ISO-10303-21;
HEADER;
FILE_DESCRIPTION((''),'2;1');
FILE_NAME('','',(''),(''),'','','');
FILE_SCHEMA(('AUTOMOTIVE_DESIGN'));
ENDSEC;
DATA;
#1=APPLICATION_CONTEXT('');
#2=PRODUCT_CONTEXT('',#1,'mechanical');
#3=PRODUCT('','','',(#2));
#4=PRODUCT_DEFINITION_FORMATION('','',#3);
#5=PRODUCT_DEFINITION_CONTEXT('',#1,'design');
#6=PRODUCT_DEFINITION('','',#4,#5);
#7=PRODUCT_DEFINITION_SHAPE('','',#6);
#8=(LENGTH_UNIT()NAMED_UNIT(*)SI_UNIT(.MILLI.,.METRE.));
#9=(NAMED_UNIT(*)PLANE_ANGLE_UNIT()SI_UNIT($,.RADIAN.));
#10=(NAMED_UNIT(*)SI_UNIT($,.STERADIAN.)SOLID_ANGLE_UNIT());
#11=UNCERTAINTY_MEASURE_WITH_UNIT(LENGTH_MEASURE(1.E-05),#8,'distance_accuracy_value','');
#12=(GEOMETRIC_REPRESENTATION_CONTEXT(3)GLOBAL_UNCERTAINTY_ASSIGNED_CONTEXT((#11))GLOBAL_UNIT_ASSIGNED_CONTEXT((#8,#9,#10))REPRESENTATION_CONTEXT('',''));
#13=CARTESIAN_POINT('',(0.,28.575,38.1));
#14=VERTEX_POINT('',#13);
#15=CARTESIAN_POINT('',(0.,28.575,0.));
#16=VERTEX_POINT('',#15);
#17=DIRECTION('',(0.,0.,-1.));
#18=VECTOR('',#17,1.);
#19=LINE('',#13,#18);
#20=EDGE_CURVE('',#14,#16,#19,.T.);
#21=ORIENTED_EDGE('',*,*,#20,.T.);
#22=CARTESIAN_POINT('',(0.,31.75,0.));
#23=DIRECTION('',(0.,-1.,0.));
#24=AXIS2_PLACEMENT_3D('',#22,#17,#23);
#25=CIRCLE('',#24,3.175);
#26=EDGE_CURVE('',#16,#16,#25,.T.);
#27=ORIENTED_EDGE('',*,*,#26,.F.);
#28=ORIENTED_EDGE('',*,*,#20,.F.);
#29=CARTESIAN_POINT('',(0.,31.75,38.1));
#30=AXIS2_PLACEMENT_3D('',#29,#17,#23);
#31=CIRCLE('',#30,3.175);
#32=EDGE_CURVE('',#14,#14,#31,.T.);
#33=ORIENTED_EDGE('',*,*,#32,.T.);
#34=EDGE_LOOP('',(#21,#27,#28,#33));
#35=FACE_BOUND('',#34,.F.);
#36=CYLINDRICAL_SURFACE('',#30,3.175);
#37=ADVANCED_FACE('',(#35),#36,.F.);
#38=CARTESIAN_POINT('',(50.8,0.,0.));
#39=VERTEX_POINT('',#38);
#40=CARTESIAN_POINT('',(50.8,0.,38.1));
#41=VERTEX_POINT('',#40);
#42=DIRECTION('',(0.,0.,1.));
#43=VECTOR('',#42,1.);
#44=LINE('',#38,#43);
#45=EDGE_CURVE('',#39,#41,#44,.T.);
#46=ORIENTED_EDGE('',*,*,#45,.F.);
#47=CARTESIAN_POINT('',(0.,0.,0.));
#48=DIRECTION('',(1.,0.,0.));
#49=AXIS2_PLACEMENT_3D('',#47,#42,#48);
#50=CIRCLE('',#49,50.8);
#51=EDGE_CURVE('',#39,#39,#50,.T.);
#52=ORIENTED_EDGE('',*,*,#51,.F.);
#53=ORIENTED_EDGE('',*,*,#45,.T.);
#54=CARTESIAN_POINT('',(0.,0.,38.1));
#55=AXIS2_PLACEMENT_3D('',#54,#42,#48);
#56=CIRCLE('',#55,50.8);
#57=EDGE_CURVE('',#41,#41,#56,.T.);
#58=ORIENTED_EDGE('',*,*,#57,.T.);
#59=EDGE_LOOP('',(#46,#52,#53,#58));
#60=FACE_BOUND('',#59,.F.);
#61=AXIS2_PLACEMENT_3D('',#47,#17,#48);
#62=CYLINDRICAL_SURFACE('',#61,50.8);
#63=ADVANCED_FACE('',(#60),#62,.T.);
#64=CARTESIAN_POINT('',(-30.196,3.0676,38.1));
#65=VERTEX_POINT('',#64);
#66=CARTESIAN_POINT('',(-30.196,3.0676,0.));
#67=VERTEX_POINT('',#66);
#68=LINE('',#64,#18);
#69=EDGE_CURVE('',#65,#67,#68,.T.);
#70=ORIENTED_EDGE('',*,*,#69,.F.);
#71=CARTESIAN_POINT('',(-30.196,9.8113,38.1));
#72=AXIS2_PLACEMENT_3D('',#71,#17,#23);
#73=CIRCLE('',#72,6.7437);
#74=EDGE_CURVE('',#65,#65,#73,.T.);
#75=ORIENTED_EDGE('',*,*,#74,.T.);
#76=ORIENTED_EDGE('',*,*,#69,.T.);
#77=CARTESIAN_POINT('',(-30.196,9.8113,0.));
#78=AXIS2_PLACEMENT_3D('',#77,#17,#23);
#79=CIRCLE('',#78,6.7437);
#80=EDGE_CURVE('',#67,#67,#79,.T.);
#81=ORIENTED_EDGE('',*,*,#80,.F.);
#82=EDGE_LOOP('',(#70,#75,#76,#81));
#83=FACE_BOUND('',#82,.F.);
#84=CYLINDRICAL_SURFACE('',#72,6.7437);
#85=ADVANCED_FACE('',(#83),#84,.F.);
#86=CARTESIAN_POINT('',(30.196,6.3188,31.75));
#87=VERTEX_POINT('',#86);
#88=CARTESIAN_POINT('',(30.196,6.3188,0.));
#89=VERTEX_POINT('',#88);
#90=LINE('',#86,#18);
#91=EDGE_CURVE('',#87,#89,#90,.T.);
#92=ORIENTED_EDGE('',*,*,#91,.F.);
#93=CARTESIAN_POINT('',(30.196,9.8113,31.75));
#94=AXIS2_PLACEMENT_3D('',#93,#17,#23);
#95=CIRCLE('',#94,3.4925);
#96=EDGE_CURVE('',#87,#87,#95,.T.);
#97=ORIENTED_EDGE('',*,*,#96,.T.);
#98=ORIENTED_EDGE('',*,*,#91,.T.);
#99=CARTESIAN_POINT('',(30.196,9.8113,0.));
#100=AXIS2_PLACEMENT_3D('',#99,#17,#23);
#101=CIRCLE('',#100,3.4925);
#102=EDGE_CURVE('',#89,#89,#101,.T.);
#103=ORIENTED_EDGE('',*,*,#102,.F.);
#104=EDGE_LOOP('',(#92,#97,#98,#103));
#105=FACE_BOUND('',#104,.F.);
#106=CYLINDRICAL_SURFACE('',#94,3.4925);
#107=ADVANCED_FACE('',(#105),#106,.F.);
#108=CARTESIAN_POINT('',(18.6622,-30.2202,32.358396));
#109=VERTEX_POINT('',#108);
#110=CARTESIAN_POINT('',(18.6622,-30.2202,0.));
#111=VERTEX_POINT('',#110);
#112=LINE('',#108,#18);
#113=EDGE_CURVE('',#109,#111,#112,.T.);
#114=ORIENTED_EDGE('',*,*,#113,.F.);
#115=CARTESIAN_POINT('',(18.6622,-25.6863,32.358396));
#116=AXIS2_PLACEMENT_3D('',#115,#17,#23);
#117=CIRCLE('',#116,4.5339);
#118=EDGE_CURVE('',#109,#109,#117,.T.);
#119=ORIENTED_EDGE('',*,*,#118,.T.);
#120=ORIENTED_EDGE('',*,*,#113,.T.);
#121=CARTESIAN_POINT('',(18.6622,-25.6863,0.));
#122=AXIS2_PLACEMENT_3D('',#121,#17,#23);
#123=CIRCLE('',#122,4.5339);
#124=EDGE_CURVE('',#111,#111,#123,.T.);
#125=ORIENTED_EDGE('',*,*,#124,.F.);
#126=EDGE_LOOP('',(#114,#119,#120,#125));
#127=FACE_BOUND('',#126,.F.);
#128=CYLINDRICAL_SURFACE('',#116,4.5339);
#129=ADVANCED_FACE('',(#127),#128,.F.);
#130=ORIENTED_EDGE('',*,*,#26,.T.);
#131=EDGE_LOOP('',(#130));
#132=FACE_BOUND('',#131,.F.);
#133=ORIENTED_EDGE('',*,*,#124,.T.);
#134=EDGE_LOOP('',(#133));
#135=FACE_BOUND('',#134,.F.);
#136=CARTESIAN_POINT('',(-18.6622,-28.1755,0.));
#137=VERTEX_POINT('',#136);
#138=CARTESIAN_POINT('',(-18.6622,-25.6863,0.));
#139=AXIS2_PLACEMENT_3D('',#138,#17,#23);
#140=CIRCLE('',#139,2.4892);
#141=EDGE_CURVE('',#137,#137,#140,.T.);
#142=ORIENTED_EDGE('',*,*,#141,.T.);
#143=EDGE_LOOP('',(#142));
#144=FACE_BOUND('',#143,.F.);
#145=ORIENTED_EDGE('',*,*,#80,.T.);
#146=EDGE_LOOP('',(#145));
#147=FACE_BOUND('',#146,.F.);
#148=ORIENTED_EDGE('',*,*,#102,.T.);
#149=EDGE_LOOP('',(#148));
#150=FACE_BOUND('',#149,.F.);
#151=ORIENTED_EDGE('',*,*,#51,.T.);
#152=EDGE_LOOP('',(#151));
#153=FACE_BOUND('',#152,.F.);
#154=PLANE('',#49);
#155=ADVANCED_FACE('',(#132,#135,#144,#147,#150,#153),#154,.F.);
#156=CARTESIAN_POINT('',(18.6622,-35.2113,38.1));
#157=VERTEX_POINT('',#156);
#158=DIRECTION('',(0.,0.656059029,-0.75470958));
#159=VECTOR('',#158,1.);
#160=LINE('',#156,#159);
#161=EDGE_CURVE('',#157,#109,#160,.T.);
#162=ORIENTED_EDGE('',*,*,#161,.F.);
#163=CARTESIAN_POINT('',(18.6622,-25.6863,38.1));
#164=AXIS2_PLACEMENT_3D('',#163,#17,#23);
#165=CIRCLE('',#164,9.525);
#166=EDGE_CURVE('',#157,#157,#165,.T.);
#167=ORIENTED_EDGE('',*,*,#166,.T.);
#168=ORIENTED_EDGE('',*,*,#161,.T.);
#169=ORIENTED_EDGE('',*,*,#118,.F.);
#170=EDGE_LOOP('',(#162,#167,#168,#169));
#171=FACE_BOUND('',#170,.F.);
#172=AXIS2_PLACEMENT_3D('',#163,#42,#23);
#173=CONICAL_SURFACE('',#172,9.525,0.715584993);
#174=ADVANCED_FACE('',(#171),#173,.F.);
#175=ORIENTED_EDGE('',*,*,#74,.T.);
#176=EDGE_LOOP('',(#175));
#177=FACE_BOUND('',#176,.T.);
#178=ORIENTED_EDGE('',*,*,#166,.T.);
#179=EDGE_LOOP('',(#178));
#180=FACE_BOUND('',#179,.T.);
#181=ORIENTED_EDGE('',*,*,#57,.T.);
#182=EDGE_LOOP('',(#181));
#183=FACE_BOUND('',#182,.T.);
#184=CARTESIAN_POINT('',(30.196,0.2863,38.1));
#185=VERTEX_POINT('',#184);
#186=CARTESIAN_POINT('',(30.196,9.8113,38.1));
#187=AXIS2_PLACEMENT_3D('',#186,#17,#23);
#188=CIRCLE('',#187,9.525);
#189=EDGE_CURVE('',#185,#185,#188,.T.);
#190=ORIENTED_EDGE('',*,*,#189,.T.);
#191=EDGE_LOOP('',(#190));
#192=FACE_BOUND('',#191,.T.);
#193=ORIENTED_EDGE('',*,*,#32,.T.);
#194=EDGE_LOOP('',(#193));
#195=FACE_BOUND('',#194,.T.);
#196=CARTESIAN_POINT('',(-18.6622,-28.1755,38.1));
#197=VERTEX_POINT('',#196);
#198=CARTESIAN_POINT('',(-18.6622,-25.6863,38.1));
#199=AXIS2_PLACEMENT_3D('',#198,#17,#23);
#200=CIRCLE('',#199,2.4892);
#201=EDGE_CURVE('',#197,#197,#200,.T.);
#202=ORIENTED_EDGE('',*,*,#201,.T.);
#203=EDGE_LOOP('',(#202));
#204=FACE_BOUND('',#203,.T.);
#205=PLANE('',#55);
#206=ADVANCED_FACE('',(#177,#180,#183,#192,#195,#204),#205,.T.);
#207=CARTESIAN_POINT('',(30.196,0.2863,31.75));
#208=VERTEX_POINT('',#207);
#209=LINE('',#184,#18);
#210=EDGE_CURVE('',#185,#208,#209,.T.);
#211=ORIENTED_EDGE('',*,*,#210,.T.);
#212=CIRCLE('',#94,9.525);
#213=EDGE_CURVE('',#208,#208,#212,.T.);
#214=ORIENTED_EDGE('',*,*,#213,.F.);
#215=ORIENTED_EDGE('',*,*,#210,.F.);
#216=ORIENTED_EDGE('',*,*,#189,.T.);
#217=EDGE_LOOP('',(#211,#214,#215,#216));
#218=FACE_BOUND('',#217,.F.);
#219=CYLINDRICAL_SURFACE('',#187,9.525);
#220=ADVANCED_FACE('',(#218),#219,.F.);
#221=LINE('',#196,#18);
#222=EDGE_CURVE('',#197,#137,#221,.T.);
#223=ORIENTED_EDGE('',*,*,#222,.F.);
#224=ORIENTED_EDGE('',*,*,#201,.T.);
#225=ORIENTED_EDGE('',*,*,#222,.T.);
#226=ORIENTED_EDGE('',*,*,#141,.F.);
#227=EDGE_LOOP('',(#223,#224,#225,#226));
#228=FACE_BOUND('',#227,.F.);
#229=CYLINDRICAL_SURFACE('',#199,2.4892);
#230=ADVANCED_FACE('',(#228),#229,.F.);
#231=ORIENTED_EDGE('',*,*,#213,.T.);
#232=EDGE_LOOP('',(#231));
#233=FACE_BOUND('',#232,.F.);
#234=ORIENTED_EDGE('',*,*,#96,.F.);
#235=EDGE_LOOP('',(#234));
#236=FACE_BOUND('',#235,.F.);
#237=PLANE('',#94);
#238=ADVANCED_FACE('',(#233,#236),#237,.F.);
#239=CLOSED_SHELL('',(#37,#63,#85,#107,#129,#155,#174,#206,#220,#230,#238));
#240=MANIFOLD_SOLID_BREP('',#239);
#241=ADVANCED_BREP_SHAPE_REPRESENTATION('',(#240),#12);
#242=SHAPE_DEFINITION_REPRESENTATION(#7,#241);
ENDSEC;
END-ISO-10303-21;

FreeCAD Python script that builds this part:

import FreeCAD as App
import Part
import Sketcher

V = App.Vector
Q = App.Units.Quantity

doc = App.newDocument("Part")
body = doc.addObject("PartDesign::Body", "Body")

sketch1 = doc.addObject("Sketcher::SketchObject", "Sketch")
body.addObject(sketch1)
sketch1.AttachmentSupport = (doc.XY_Plane, [""])
sketch1.MapMode = "FlatFace"
sketch1.addGeometry(Part.Circle(V(0, 0, 0), V(0, 0, 1), 51), False)
sketch1.addConstraint([
    Sketcher.Constraint("Coincident", 0, 3, -1, 1),
    Sketcher.Constraint("Diameter", 0, Q("4 in")),
])
pad1 = doc.addObject("PartDesign::Pad", "Pad")
body.addObject(pad1)
pad1.Profile = sketch1
pad1.Length = Q("1.5 in")

sketch2 = doc.addObject("Sketcher::SketchObject", "Sketch001")
body.addObject(sketch2)
sketch2.AttachmentSupport = (doc.XY_Plane, [""])
sketch2.MapMode = "FlatFace"
sketch2.AttachmentOffset = App.Placement(V(0, 0, 1.5 * 25.4), App.Rotation())
sketch2.addGeometry(Part.Circle(V(0, 31.8, 0), V(0, 0, 1), 3.2), False)
sketch2.addConstraint([
    Sketcher.Constraint("PointOnObject", 0, 3, -2),
    Sketcher.Constraint("Diameter", 0, Q("0.25 in")),
    Sketcher.Constraint("DistanceY", -1, 1, 0, 3, Q("1.25 in")),
])
doc.recompute()
hole = doc.addObject("PartDesign::Hole", "Hole")
body.addObject(hole)
hole.Profile = sketch2
hole.ThreadType = "None"
hole.Diameter = Q("0.25 in")
hole.DepthType = "Dimension"
hole.Depth = Q("1.5 in")
hole.DrillPoint = "Angled"
hole.DrillPointAngle = 118

sketch3 = doc.addObject("Sketcher::SketchObject", "Sketch002")
body.addObject(sketch3)
sketch3.AttachmentSupport = (doc.XY_Plane, [""])
sketch3.MapMode = "FlatFace"
sketch3.AttachmentOffset = App.Placement(V(0, 0, 1.5 * 25.4), App.Rotation())
sketch3.addGeometry(Part.Circle(V(30.2, 9.8, 0), V(0, 0, 1), 3.5), False)
sketch3.addConstraint([
    Sketcher.Constraint("Diameter", 0, Q("0.275 in")),
    Sketcher.Constraint("DistanceX", -1, 1, 0, 3, Q("30.196 mm")),
    Sketcher.Constraint("DistanceY", -1, 1, 0, 3, Q("9.8113 mm")),
])
doc.recompute()
hole2 = doc.addObject("PartDesign::Hole", "Hole001")
body.addObject(hole2)
hole2.Profile = sketch3
hole2.ThreadType = "None"
hole2.Diameter = Q("0.275 in")
hole2.DepthType = "Dimension"
hole2.Depth = Q("1.5 in")
hole2.DrillPoint = "Angled"
hole2.DrillPointAngle = 118
hole2.HoleCutType = "Counterbore"
hole2.HoleCutDiameter = Q("0.75 in")
hole2.HoleCutDepth = Q("0.25 in")

sketch4 = doc.addObject("Sketcher::SketchObject", "Sketch003")
body.addObject(sketch4)
sketch4.AttachmentSupport = (doc.XY_Plane, [""])
sketch4.MapMode = "FlatFace"
sketch4.AttachmentOffset = App.Placement(V(0, 0, 1.5 * 25.4), App.Rotation())
sketch4.addGeometry(Part.Circle(V(18.7, -25.7, 0), V(0, 0, 1), 4.5), False)
sketch4.addConstraint([
    Sketcher.Constraint("Diameter", 0, Q("0.357 in")),
    Sketcher.Constraint("DistanceX", -1, 1, 0, 3, Q("18.6622 mm")),
    Sketcher.Constraint("DistanceY", 0, 3, -1, 1, Q("25.6863 mm")),
])
doc.recompute()
hole3 = doc.addObject("PartDesign::Hole", "Hole002")
body.addObject(hole3)
hole3.Profile = sketch4
hole3.ThreadType = "None"
hole3.Diameter = Q("0.357 in")
hole3.DepthType = "ThroughAll"
hole3.HoleCutType = "Countersink"
hole3.HoleCutDiameter = Q("0.75 in")
hole3.HoleCutCountersinkAngle = 82

sketch5 = doc.addObject("Sketcher::SketchObject", "Sketch004")
body.addObject(sketch5)
sketch5.AttachmentSupport = (doc.XY_Plane, [""])
sketch5.MapMode = "FlatFace"
sketch5.AttachmentOffset = App.Placement(V(0, 0, 1.5 * 25.4), App.Rotation())
sketch5.addGeometry(Part.Circle(V(-18.7, -25.7, 0), V(0, 0, 1), 2.5), False)
sketch5.addConstraint([
    Sketcher.Constraint("Diameter", 0, Q("0.196 in")),
    Sketcher.Constraint("DistanceX", 0, 3, -1, 1, Q("18.6622 mm")),
    Sketcher.Constraint("DistanceY", 0, 3, -1, 1, Q("25.6863 mm")),
])
doc.recompute()
hole4 = doc.addObject("PartDesign::Hole", "Hole003")
body.addObject(hole4)
hole4.Profile = sketch5
hole4.ThreadType = "None"
hole4.Diameter = Q("0.196 in")
hole4.DepthType = "ThroughAll"

sketch6 = doc.addObject("Sketcher::SketchObject", "Sketch005")
body.addObject(sketch6)
sketch6.AttachmentSupport = (doc.XY_Plane, [""])
sketch6.MapMode = "FlatFace"
sketch6.AttachmentOffset = App.Placement(V(0, 0, 1.5 * 25.4), App.Rotation())
sketch6.addGeometry(Part.Circle(V(-30, 10, 0), V(0, 0, 1), 7), False)
sketch6.addConstraint([
    Sketcher.Constraint("Diameter", 0, Q("0.531 in")),
    Sketcher.Constraint("DistanceX", 0, 3, -1, 1, Q("30.196 mm")),
    Sketcher.Constraint("DistanceY", -1, 1, 0, 3, Q("9.8113 mm")),
])
doc.recompute()
hole5 = doc.addObject("PartDesign::Hole", "Hole004")
body.addObject(hole5)
hole5.Profile = sketch6
hole5.ThreadType = "None"
hole5.Diameter = Q("0.531 in")
hole5.DepthType = "ThroughAll"

doc.recompute()
